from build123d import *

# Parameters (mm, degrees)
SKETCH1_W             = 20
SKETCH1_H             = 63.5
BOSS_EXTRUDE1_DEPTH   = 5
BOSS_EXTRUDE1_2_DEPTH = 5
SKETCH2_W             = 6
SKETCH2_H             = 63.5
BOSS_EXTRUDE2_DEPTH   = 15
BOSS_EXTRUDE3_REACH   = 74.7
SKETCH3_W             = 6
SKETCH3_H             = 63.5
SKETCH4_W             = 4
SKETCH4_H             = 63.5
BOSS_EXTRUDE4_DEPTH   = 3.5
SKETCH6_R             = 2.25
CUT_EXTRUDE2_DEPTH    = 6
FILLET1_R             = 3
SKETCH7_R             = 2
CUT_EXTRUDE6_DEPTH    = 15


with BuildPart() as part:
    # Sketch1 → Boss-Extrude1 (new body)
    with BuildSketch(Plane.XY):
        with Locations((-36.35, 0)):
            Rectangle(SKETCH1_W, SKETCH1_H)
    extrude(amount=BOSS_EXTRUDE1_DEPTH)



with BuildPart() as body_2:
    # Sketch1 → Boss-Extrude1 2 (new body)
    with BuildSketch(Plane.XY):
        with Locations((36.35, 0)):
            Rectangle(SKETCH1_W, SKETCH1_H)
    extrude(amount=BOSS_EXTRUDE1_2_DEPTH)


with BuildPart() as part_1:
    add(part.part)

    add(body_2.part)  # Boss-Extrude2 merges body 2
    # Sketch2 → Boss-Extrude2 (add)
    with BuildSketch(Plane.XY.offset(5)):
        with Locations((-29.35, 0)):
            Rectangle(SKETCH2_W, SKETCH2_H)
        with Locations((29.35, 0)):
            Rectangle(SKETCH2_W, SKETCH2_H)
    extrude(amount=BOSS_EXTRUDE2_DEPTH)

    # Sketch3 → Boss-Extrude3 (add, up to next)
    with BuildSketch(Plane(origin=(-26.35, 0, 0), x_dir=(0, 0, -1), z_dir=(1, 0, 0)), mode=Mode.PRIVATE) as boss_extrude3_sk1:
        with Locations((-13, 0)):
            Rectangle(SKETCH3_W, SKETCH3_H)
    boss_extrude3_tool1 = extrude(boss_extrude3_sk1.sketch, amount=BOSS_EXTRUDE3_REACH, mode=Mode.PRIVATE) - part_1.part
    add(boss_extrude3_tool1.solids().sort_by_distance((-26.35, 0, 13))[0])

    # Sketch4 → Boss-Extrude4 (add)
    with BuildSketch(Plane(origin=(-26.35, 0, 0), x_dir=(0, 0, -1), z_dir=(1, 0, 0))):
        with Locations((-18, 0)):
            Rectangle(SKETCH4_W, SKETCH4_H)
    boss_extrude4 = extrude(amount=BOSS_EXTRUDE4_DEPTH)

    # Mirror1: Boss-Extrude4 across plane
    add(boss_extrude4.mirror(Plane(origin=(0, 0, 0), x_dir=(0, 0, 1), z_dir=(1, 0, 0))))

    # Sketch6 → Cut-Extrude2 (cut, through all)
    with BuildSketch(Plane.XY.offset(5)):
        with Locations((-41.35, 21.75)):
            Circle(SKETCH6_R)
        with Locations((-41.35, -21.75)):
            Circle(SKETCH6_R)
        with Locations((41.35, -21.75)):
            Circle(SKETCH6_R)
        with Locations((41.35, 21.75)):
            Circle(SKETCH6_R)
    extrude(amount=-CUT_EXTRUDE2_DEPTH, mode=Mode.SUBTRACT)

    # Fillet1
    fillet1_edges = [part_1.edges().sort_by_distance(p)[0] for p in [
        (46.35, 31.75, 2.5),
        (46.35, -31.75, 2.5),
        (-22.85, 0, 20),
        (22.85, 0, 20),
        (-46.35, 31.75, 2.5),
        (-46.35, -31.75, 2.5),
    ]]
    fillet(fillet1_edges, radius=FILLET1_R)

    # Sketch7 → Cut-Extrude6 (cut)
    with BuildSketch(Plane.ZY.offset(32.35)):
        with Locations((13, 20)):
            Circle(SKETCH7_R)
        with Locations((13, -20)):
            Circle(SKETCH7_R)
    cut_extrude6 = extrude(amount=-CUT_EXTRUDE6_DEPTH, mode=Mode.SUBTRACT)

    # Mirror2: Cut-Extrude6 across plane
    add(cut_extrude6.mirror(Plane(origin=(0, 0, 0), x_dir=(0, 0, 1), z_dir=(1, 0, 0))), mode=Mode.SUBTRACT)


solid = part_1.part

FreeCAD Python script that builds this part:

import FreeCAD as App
import Part
import Sketcher

V = App.Vector
Q = App.Units.Quantity


def edges_at(feature, points):
    """Names of the edges that pass closest to the given points."""
    edges = feature.Shape.Edges
    near = lambda p: min(range(len(edges)), key=lambda i: edges[i].distToShape(Part.Vertex(*p))[0])
    return sorted({f"Edge{near(p) + 1}" for p in points})


def add_polygon(sketch, points):
    """Adds a closed chain of lines whose ends are joined by coincident constraints."""
    first, n = sketch.GeometryCount, len(points)
    for a, b in zip(points, points[1:] + points[:1]):
        sketch.addGeometry(Part.LineSegment(App.Vector(*a, 0), App.Vector(*b, 0)), False)
    for i in range(n):
        sketch.addConstraint(Sketcher.Constraint("Coincident", first + i, 2, first + (i + 1) % n, 1))

doc = App.newDocument("Part")
body = doc.addObject("PartDesign::Body", "Body")

# Sketch on XY plane
sketch1 = body.newObject("Sketcher::SketchObject", "Sketch")
sketch1.AttachmentSupport = (doc.getObject("XY_Plane"), [""])
sketch1.MapMode = "FlatFace"
add_polygon(sketch1, [(-46, 32), (-46, -32), (-26, -32), (-26, 32)])  # lines 0-3
sketch1.addConstraint([
    Sketcher.Constraint("Vertical", 0),
    Sketcher.Constraint("Horizontal", 1),
    Sketcher.Constraint("Vertical", 2),
    Sketcher.Constraint("Horizontal", 3),
    Sketcher.Constraint("DistanceX", 1, 1, 1, 2, Q("20 mm")),
    Sketcher.Constraint("DistanceY", 0, 2, 0, 1, Q("63.5 mm")),
    Sketcher.Constraint("DistanceX", 0, 2, -1, 1, Q("46.35 mm")),
    Sketcher.Constraint("DistanceY", 0, 2, -1, 1, Q("31.75 mm")),
])
pad1 = body.newObject("PartDesign::Pad", "Pad")
pad1.Profile = sketch1
pad1.Length = 5
body2 = doc.addObject("PartDesign::Body", "Body001")

# Sketch on XY plane
sketch2 = body2.newObject("Sketcher::SketchObject", "Sketch001")
sketch2.AttachmentSupport = (doc.getObject("XY_Plane001"), [""])
sketch2.MapMode = "FlatFace"
add_polygon(sketch2, [(26, 32), (26, -32), (46, -32), (46, 32)])  # lines 0-3
sketch2.addConstraint([
    Sketcher.Constraint("Vertical", 0),
    Sketcher.Constraint("Horizontal", 1),
    Sketcher.Constraint("Vertical", 2),
    Sketcher.Constraint("Horizontal", 3),
    Sketcher.Constraint("DistanceX", 1, 1, 1, 2, Q("20 mm")),
    Sketcher.Constraint("DistanceY", 0, 2, 0, 1, Q("63.5 mm")),
    Sketcher.Constraint("DistanceX", -1, 1, 0, 2, Q("26.35 mm")),
    Sketcher.Constraint("DistanceY", 0, 2, -1, 1, Q("31.75 mm")),
])
pad2 = body2.newObject("PartDesign::Pad", "Pad001")
pad2.Profile = sketch2
pad2.Length = 5
body.AllowCompound = True
doc.recompute()

boolean = body.newObject("PartDesign::Boolean", "Boolean")
boolean.Type = "Fuse"
boolean.addObjects([body2])

# Sketch on XY plane
sketch3 = body.newObject("Sketcher::SketchObject", "Sketch002")
sketch3.AttachmentSupport = (doc.getObject("XY_Plane"), [""])
sketch3.MapMode = "FlatFace"
sketch3.AttachmentOffset = App.Placement(V(0, 0, 5), App.Rotation())
add_polygon(sketch3, [(-32, 32), (-32, -32), (-26, -32), (-26, 32)])  # lines 0-3
add_polygon(sketch3, [(26, 32), (26, -32), (32, -32), (32, 32)])  # lines 4-7
sketch3.addConstraint([
    Sketcher.Constraint("Vertical", 0),
    Sketcher.Constraint("Horizontal", 1),
    Sketcher.Constraint("Vertical", 2),
    Sketcher.Constraint("Horizontal", 3),
    Sketcher.Constraint("Vertical", 4),
    Sketcher.Constraint("Horizontal", 5),
    Sketcher.Constraint("Vertical", 6),
    Sketcher.Constraint("Horizontal", 7),
    Sketcher.Constraint("Symmetric", 2, 2, 4, 2, -1, 1),
    Sketcher.Constraint("Symmetric", 0, 2, 6, 2, -1, 1),
    Sketcher.Constraint("Horizontal", 1, 2, 4, 2),
    Sketcher.Constraint("DistanceX", 1, 1, 1, 2, Q("6 mm")),
    Sketcher.Constraint("DistanceY", 0, 2, 0, 1, Q("63.5 mm")),
    Sketcher.Constraint("DistanceX", 1, 2, 4, 2, Q("52.7 mm")),
])
pad3 = body.newObject("PartDesign::Pad", "Pad002")
pad3.Profile = sketch3
pad3.Length = 15

# Sketch on YZ plane
sketch4 = body.newObject("Sketcher::SketchObject", "Sketch003")
sketch4.AttachmentSupport = (doc.getObject("YZ_Plane"), [""])
sketch4.MapMode = "FlatFace"
sketch4.AttachmentOffset = App.Placement(V(0, 0, -26.35), App.Rotation())
add_polygon(sketch4, [(32, 16), (-32, 16), (-32, 10), (32, 10)])  # lines 0-3
sketch4.addConstraint([
    Sketcher.Constraint("Horizontal", 0),
    Sketcher.Constraint("Vertical", 1),
    Sketcher.Constraint("Horizontal", 2),
    Sketcher.Constraint("Vertical", 3),
    Sketcher.Constraint("DistanceY", 1, 2, 1, 1, Q("6 mm")),
    Sketcher.Constraint("DistanceX", 0, 2, 0, 1, Q("63.5 mm")),
    Sketcher.Constraint("DistanceY", -1, 1, 0, 2, Q("16 mm")),
    Sketcher.Constraint("DistanceX", 0, 2, -1, 1, Q("31.75 mm")),
])
pad4 = body.newObject("PartDesign::Pad", "Pad003")
pad4.Profile = sketch4
pad4.Type = "UpToFirst"

# Sketch on YZ plane
sketch5 = body.newObject("Sketcher::SketchObject", "Sketch004")
sketch5.AttachmentSupport = (doc.getObject("YZ_Plane"), [""])
sketch5.MapMode = "FlatFace"
sketch5.AttachmentOffset = App.Placement(V(0, 0, -26.35), App.Rotation())
add_polygon(sketch5, [(31.8, 20), (-31.8, 20), (-31.8, 16), (31.8, 16)])  # lines 0-3
sketch5.addConstraint([
    Sketcher.Constraint("Horizontal", 0),
    Sketcher.Constraint("Vertical", 1),
    Sketcher.Constraint("Horizontal", 2),
    Sketcher.Constraint("Vertical", 3),
    Sketcher.Constraint("DistanceY", 1, 2, 1, 1, Q("4 mm")),
    Sketcher.Constraint("DistanceX", 0, 2, 0, 1, Q("63.5 mm")),
    Sketcher.Constraint("DistanceY", -1, 1, 0, 2, Q("20 mm")),
    Sketcher.Constraint("DistanceX", 0, 2, -1, 1, Q("31.75 mm")),
])
pad5 = body.newObject("PartDesign::Pad", "Pad004")
pad5.Profile = sketch5
pad5.Length = 3.5
doc.recompute()

mirrored = body.newObject("PartDesign::Mirrored", "Mirrored")
mirrored.Originals = [pad5]
mirrored.MirrorPlane = (doc.getObject("YZ_Plane"), [""])
body.Tip = mirrored

# Sketch on XY plane
sketch6 = body.newObject("Sketcher::SketchObject", "Sketch005")
sketch6.AttachmentSupport = (doc.getObject("XY_Plane"), [""])
sketch6.MapMode = "FlatFace"
sketch6.AttachmentOffset = App.Placement(V(0, 0, 5), App.Rotation())
sketch6.addGeometry([
    Part.Circle(V(-41.4, 21.8, 0), V(0, 0, 1), 2.2),
    Part.Circle(V(-41.4, -21.8, 0), V(0, 0, 1), 2.2),
    Part.Circle(V(41.4, -21.8, 0), V(0, 0, 1), 2.2),
    Part.Circle(V(41.4, 21.8, 0), V(0, 0, 1), 2.2),
], False)
sketch6.addConstraint([
    Sketcher.Constraint("Equal", 0, 1),
    Sketcher.Constraint("Equal", 1, 2),
    Sketcher.Constraint("Equal", 2, 3),
    Sketcher.Constraint("Symmetric", 0, 3, 2, 3, -1, 1),
    Sketcher.Constraint("Symmetric", 1, 3, 3, 3, -1, 1),
    Sketcher.Constraint("Symmetric", 1, 3, 2, 3, -2),
    Sketcher.Constraint("Diameter", 0, Q("4.5 mm")),
    Sketcher.Constraint("DistanceY", 1, 3, 0, 3, Q("43.5 mm")),
    Sketcher.Constraint("DistanceX", 1, 3, 2, 3, Q("82.7 mm")),
])
pocket1 = body.newObject("PartDesign::Pocket", "Pocket")
pocket1.Profile = sketch6
pocket1.Type = "ThroughAll"
doc.recompute()

fillet = body.newObject("PartDesign::Fillet", "Fillet")
fillet.Base = (pocket1, edges_at(pocket1, [
    (46.35, 31.75, 2.5),
    (46.35, -31.75, 2.5),
    (-22.85, 0, 20),
    (22.85, 0, 20),
    (-46.35, 31.75, 2.5),
    (-46.35, -31.75, 2.5),
]))
fillet.Radius = 3

# Sketch on YZ plane
sketch7 = body.newObject("Sketcher::SketchObject", "Sketch006")
sketch7.AttachmentSupport = (doc.getObject("YZ_Plane"), [""])
sketch7.MapMode = "FlatFace"
sketch7.AttachmentOffset = App.Placement(V(0, 0, -32.35), App.Rotation())
sketch7.addGeometry([
    Part.Circle(V(20, 13, 0), V(0, 0, 1), 2),
    Part.Circle(V(-20, 13, 0), V(0, 0, 1), 2),
], False)
sketch7.addConstraint([
    Sketcher.Constraint("Equal", 0, 1),
    Sketcher.Constraint("Symmetric", 0, 3, 1, 3, -2),
    Sketcher.Constraint("Diameter", 0, Q("4 mm")),
    Sketcher.Constraint("DistanceX", -1, 1, 0, 3, Q("20 mm")),
    Sketcher.Constraint("DistanceY", -1, 1, 0, 3, Q("13 mm")),
])
pocket2 = body.newObject("PartDesign::Pocket", "Pocket001")
pocket2.Profile = sketch7
pocket2.Length = 15
pocket2.Reversed = True
doc.recompute()

mirrored2 = body.newObject("PartDesign::Mirrored", "Mirrored001")
mirrored2.Originals = [pocket2]
mirrored2.MirrorPlane = (doc.getObject("YZ_Plane"), [""])
body.Tip = mirrored2

doc.recompute()
